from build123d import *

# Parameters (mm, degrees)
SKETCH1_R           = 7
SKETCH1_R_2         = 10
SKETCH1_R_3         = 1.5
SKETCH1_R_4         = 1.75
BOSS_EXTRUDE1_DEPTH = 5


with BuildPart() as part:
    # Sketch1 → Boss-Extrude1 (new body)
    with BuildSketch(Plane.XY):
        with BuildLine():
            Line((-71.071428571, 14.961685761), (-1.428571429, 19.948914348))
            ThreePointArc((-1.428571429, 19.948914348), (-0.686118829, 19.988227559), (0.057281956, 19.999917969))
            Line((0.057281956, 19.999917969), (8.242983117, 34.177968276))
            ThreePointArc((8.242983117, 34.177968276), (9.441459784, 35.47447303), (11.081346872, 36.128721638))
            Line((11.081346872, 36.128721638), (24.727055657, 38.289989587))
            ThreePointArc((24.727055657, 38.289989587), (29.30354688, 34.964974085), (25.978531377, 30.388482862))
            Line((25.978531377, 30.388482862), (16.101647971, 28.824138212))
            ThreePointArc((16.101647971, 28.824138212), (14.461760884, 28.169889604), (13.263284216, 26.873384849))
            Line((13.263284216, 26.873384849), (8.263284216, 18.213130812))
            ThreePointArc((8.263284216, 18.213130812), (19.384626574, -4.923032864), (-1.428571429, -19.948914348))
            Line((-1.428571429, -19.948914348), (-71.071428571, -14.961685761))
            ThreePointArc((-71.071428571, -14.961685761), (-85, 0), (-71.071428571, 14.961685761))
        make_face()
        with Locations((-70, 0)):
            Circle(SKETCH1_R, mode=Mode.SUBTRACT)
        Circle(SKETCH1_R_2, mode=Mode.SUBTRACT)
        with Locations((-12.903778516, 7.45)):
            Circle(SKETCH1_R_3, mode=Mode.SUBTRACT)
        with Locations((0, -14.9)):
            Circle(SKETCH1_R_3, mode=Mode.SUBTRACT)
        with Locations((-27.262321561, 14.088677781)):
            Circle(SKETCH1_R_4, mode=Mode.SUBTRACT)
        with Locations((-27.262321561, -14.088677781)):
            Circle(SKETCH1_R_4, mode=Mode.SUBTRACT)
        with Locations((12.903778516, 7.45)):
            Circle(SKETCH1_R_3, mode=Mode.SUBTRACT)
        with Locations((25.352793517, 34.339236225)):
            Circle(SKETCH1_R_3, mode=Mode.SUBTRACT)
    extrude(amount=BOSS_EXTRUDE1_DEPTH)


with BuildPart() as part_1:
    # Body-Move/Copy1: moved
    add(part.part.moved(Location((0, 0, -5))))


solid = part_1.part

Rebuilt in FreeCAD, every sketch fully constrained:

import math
import FreeCAD as App
import Part
import Sketcher
Q = App.Units.Quantity

doc = App.newDocument("Part")
body = doc.addObject("PartDesign::Body", "Body")

# Sketch on XY plane
sketch1 = body.newObject("Sketcher::SketchObject", "Sketch")
sketch1.AttachmentSupport = (doc.getObject("XY_Plane"), [""])
sketch1.MapMode = "FlatFace"
sketch1.addGeometry([
    Part.LineSegment(App.Vector(-1.4, 19.9, 0), App.Vector(-71.1, 15, 0)),  # 0
    Part.ArcOfCircle(Part.Circle(App.Vector(-70, 0, 0), App.Vector(0, 0, 1), 15), math.radians(94), math.radians(266)),  # 1
    Part.LineSegment(App.Vector(-71.1, -15, 0), App.Vector(-1.4, -19.9, 0)),  # 2
    Part.ArcOfCircle(Part.Circle(App.Vector(0, 0, 0), App.Vector(0, 0, 1), 20), math.radians(-94), math.radians(66)),  # 3
    Part.LineSegment(App.Vector(8.3, 18.2, 0), App.Vector(13.3, 26.9, 0)),  # 4
    Part.ArcOfCircle(Part.Circle(App.Vector(16.7, 24.9, 0), App.Vector(0, 0, 1), 4), math.radians(99), math.radians(150)),  # 5
    Part.LineSegment(App.Vector(16.1, 28.8, 0), App.Vector(26, 30.4, 0)),  # 6
    Part.ArcOfCircle(Part.Circle(App.Vector(25.4, 34.3, 0), App.Vector(0, 0, 1), 4), math.radians(-81), math.radians(99)),  # 7
    Part.LineSegment(App.Vector(24.7, 38.3, 0), App.Vector(11.1, 36.1, 0)),  # 8
    Part.ArcOfCircle(Part.Circle(App.Vector(11.7, 32.2, 0), App.Vector(0, 0, 1), 4), math.radians(99), math.radians(150)),  # 9
    Part.LineSegment(App.Vector(8.2, 34.2, 0), App.Vector(0.1, 20, 0)),  # 10
    Part.ArcOfCircle(Part.Circle(App.Vector(0, 0, 0), App.Vector(0, 0, 1), 20), math.radians(89.84), math.radians(94.1)),  # 11
    Part.Circle(App.Vector(0, -14.9, 0), App.Vector(0, 0, 1), 1.5),  # 12
    Part.Circle(App.Vector(12.9, 7.5, 0), App.Vector(0, 0, 1), 1.5),  # 13
    Part.Circle(App.Vector(0, 0, 0), App.Vector(0, 0, 1), 10),  # 14
    Part.Circle(App.Vector(-12.9, 7.5, 0), App.Vector(0, 0, 1), 1.5),  # 15
    Part.Circle(App.Vector(-27.3, -14.1, 0), App.Vector(0, 0, 1), 1.8),  # 16
    Part.Circle(App.Vector(-70, 0, 0), App.Vector(0, 0, 1), 7),  # 17
    Part.Circle(App.Vector(25.4, 34.3, 0), App.Vector(0, 0, 1), 1.5),  # 18
    Part.Circle(App.Vector(-27.3, 14.1, 0), App.Vector(0, 0, 1), 1.8),  # 19
], False)
sketch1.addConstraint([
    Sketcher.Constraint("Tangent", 0, 2, 1, 1),
    Sketcher.Constraint("Tangent", 1, 2, 2, 1),
    Sketcher.Constraint("Tangent", 2, 2, 3, 1),
    Sketcher.Constraint("Coincident", 3, 2, 4, 1),
    Sketcher.Constraint("Tangent", 4, 2, 5, 2),
    Sketcher.Constraint("Tangent", 5, 1, 6, 1),
    Sketcher.Constraint("Tangent", 6, 2, 7, 1),
    Sketcher.Constraint("Tangent", 7, 2, 8, 1),
    Sketcher.Constraint("Tangent", 8, 2, 9, 1),
    Sketcher.Constraint("Tangent", 9, 2, 10, 1),
    Sketcher.Constraint("Coincident", 10, 2, 11, 1),
    Sketcher.Constraint("Tangent", 11, 2, 0, 1),
    Sketcher.Constraint("Coincident", 3, 3, -1, 1),
    Sketcher.Constraint("Coincident", 11, 3, -1, 1),
    Sketcher.Constraint("Coincident", 14, 3, -1, 1),
    Sketcher.Constraint("Coincident", 17, 3, 1, 3),
    Sketcher.Constraint("Coincident", 18, 3, 7, 3),
    Sketcher.Constraint("Equal", 5, 7),
    Sketcher.Constraint("Equal", 7, 9),
    Sketcher.Constraint("Equal", 3, 11),
    Sketcher.Constraint("Equal", 12, 13),
    Sketcher.Constraint("Equal", 13, 15),
    Sketcher.Constraint("Equal", 15, 18),
    Sketcher.Constraint("Equal", 16, 19),
    Sketcher.Constraint("Symmetric", 13, 3, 15, 3, -2),
    Sketcher.Constraint("Symmetric", 16, 3, 19, 3, -1),
    Sketcher.Constraint("PointOnObject", 1, 3, -1),
    Sketcher.Constraint("PointOnObject", 12, 3, -2),
    Sketcher.Constraint("Parallel", 6, 8),
    Sketcher.Constraint("Parallel", 4, 10),
    Sketcher.Constraint("Equal", 4, 6),
    Sketcher.Constraint("Diameter", 12, 3.0),
    Sketcher.Constraint("Diameter", 14, 20.0),
    Sketcher.Constraint("Diameter", 17, 14.0),
    Sketcher.Constraint("Radius", 1, 15.0),
    Sketcher.Constraint("Radius", 3, 20.0),
    Sketcher.Constraint("Radius", 5, 4.0),
    Sketcher.Constraint("Diameter", 16, 3.5),
    Sketcher.Constraint("Angle", 4, Q("60 deg")),
    Sketcher.Constraint("Angle", 6, Q("9 deg")),
    Sketcher.Constraint("Distance", 4, 10.0),
    Sketcher.Constraint("DistanceX", 1, 3, -1, 1, 70.0),
    Sketcher.Constraint("DistanceY", 12, 3, -1, 1, 14.9),
    Sketcher.Constraint("DistanceY", -1, 1, 13, 3, 7.45),
    Sketcher.Constraint("DistanceX", 9, 3, 5, 3, 5.020301),
    Sketcher.Constraint("DistanceX", 10, 2, 9, 2, 8.185701),
    Sketcher.Constraint("DistanceX", -1, 1, 13, 3, 12.903779),
    Sketcher.Constraint("DistanceX", 16, 3, -1, 1, 27.262322),
    Sketcher.Constraint("DistanceY", 16, 3, 11, 3, 14.088678),
])
pad1 = body.newObject("PartDesign::Pad", "Pad")
pad1.Profile = sketch1
pad1.Length = 5
body2 = doc.addObject("PartDesign::Body", "Body001")
doc.recompute()

body.Placement = App.Placement(App.Vector(0, 0, -5), App.Rotation(App.Vector(0, 0, 1), 0))
boolean = body2.newObject("PartDesign::Boolean", "Boolean")
boolean.Type = "Fuse"
boolean.addObjects([body])

doc.recompute()
